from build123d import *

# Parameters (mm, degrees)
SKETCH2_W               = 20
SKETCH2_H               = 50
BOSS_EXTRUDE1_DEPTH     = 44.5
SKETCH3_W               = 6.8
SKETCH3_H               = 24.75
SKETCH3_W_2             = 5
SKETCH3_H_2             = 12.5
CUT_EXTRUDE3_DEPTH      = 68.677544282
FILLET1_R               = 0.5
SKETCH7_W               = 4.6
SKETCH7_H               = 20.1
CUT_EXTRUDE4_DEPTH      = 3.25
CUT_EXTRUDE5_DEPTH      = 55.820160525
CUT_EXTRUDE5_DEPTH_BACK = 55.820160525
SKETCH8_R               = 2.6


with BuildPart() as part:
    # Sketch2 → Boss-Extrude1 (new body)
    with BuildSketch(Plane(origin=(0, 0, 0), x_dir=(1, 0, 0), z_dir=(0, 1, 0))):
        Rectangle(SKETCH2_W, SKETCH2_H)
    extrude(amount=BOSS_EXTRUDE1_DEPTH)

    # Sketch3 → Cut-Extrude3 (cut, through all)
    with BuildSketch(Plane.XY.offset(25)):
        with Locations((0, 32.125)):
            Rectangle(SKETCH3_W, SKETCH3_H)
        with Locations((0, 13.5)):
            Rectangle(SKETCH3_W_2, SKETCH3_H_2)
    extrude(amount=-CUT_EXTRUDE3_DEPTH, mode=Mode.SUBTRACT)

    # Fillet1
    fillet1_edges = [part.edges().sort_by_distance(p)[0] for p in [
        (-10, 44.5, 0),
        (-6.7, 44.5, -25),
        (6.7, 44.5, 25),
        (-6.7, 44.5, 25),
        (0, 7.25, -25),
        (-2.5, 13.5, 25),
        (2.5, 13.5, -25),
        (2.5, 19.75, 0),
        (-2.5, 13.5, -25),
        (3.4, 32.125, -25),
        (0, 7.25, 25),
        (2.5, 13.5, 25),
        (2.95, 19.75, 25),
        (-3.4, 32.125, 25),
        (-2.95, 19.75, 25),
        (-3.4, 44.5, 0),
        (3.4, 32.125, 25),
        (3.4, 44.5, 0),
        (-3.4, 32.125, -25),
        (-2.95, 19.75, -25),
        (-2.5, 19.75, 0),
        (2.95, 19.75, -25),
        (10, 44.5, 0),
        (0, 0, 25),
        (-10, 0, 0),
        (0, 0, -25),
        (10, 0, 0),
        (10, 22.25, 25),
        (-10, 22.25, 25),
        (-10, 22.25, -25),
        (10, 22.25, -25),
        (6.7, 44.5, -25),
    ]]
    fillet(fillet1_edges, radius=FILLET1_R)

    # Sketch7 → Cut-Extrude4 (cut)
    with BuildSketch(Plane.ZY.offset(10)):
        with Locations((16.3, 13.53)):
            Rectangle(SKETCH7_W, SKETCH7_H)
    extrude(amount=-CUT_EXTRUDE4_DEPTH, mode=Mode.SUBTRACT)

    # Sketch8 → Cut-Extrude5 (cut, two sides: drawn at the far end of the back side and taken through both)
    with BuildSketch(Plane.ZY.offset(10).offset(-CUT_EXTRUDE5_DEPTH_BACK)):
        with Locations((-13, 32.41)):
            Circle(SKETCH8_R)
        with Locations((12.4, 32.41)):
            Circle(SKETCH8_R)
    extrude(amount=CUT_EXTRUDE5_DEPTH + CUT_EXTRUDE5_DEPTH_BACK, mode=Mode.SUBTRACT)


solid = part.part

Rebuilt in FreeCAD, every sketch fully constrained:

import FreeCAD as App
import Part
import Sketcher


def edges_at(feature, points):
    """Names of the edges that pass closest to the given points."""
    edges = feature.Shape.Edges
    near = lambda p: min(range(len(edges)), key=lambda i: edges[i].distToShape(Part.Vertex(*p))[0])
    return sorted({f"Edge{near(p) + 1}" for p in points})

doc = App.newDocument("Part")
body = doc.addObject("PartDesign::Body", "Body")

sketch1 = body.newObject("Sketcher::SketchObject", "Sketch")
sketch1.AttachmentSupport = (doc.getObject("XZ_Plane"), [""])
sketch1.MapMode = "FlatFace"
sketch1.addGeometry(Part.LineSegment(App.Vector(-10, -25, 0), App.Vector(-10, 25, 0)), False)
sketch1.addGeometry(Part.LineSegment(App.Vector(-10, 25, 0), App.Vector(10, 25, 0)), False)
sketch1.addGeometry(Part.LineSegment(App.Vector(10, 25, 0), App.Vector(10, -25, 0)), False)
sketch1.addGeometry(Part.LineSegment(App.Vector(10, -25, 0), App.Vector(-10, -25, 0)), False)
sketch1.addConstraint(Sketcher.Constraint("Coincident", 0, 2, 1, 1))
sketch1.addConstraint(Sketcher.Constraint("Coincident", 1, 2, 2, 1))
sketch1.addConstraint(Sketcher.Constraint("Coincident", 2, 2, 3, 1))
sketch1.addConstraint(Sketcher.Constraint("Coincident", 3, 2, 0, 1))
sketch1.addConstraint(Sketcher.Constraint("Vertical", 0))
sketch1.addConstraint(Sketcher.Constraint("Horizontal", 1))
sketch1.addConstraint(Sketcher.Constraint("Vertical", 2))
sketch1.addConstraint(Sketcher.Constraint("Horizontal", 3))
sketch1.addConstraint(Sketcher.Constraint("Symmetric", 0, 2, 2, 2, -1, 1))
sketch1.addConstraint(Sketcher.Constraint("DistanceX", 1, 1, 1, 2, 20.0))
sketch1.addConstraint(Sketcher.Constraint("DistanceY", 0, 1, 0, 2, 50.0))
pad1 = body.newObject("PartDesign::Pad", "Pad")
pad1.Profile = sketch1
pad1.Length = 44.5
pad1.Reversed = True

sketch2 = body.newObject("Sketcher::SketchObject", "Sketch001")
sketch2.AttachmentSupport = (doc.getObject("XY_Plane"), [""])
sketch2.MapMode = "FlatFace"
sketch2.AttachmentOffset = App.Placement(App.Vector(0, 0, 25), App.Rotation())
sketch2.addGeometry(Part.LineSegment(App.Vector(-3.4, 44.5, 0), App.Vector(-3.4, 19.8, 0)), False)
sketch2.addGeometry(Part.LineSegment(App.Vector(-3.4, 19.8, 0), App.Vector(-2.5, 19.8, 0)), False)
sketch2.addGeometry(Part.LineSegment(App.Vector(-2.5, 19.8, 0), App.Vector(-2.5, 7.2, 0)), False)
sketch2.addGeometry(Part.LineSegment(App.Vector(-2.5, 7.2, 0), App.Vector(2.5, 7.2, 0)), False)
sketch2.addGeometry(Part.LineSegment(App.Vector(2.5, 7.2, 0), App.Vector(2.5, 19.8, 0)), False)
sketch2.addGeometry(Part.LineSegment(App.Vector(2.5, 19.8, 0), App.Vector(3.4, 19.8, 0)), False)
sketch2.addGeometry(Part.LineSegment(App.Vector(3.4, 19.8, 0), App.Vector(3.4, 44.5, 0)), False)
sketch2.addGeometry(Part.LineSegment(App.Vector(3.4, 44.5, 0), App.Vector(-3.4, 44.5, 0)), False)
sketch2.addConstraint(Sketcher.Constraint("Coincident", 0, 2, 1, 1))
sketch2.addConstraint(Sketcher.Constraint("Coincident", 1, 2, 2, 1))
sketch2.addConstraint(Sketcher.Constraint("Coincident", 2, 2, 3, 1))
sketch2.addConstraint(Sketcher.Constraint("Coincident", 3, 2, 4, 1))
sketch2.addConstraint(Sketcher.Constraint("Coincident", 4, 2, 5, 1))
sketch2.addConstraint(Sketcher.Constraint("Coincident", 5, 2, 6, 1))
sketch2.addConstraint(Sketcher.Constraint("Coincident", 6, 2, 7, 1))
sketch2.addConstraint(Sketcher.Constraint("Coincident", 7, 2, 0, 1))
sketch2.addConstraint(Sketcher.Constraint("Vertical", 0))
sketch2.addConstraint(Sketcher.Constraint("Horizontal", 1))
sketch2.addConstraint(Sketcher.Constraint("Vertical", 2))
sketch2.addConstraint(Sketcher.Constraint("Horizontal", 3))
sketch2.addConstraint(Sketcher.Constraint("Vertical", 4))
sketch2.addConstraint(Sketcher.Constraint("Horizontal", 5))
sketch2.addConstraint(Sketcher.Constraint("Vertical", 6))
sketch2.addConstraint(Sketcher.Constraint("Horizontal", 7))
sketch2.addConstraint(Sketcher.Constraint("Symmetric", 1, 2, 4, 2, -2))
sketch2.addConstraint(Sketcher.Constraint("Equal", 1, 5))
sketch2.addConstraint(Sketcher.Constraint("DistanceX", 3, 1, 3, 2, 5.0))
sketch2.addConstraint(Sketcher.Constraint("DistanceX", 1, 1, 1, 2, 0.9))
sketch2.addConstraint(Sketcher.Constraint("DistanceY", 2, 2, 2, 1, 12.5))
sketch2.addConstraint(Sketcher.Constraint("DistanceY", 0, 2, 0, 1, 24.75))
sketch2.addConstraint(Sketcher.Constraint("DistanceY", -1, 1, 6, 2, 44.5))
pocket1 = body.newObject("PartDesign::Pocket", "Pocket")
pocket1.Profile = sketch2
pocket1.Type = "ThroughAll"
doc.recompute()

fillet = body.newObject("PartDesign::Fillet", "Fillet")
fillet.Base = (pocket1, edges_at(pocket1, [
    (-10, 44.5, 0),
    (-6.7, 44.5, -25),
    (6.7, 44.5, 25),
    (-6.7, 44.5, 25),
    (0, 7.25, -25),
    (-2.5, 13.5, 25),
    (2.5, 13.5, -25),
    (2.5, 19.75, 0),
    (-2.5, 13.5, -25),
    (3.4, 32.125, -25),
    (0, 7.25, 25),
    (2.5, 13.5, 25),
    (2.95, 19.75, 25),
    (-3.4, 32.125, 25),
    (-2.95, 19.75, 25),
    (-3.4, 44.5, 0),
    (3.4, 32.125, 25),
    (3.4, 44.5, 0),
    (-3.4, 32.125, -25),
    (-2.95, 19.75, -25),
    (-2.5, 19.75, 0),
    (2.95, 19.75, -25),
    (10, 44.5, 0),
    (0, 0, 25),
    (-10, 0, 0),
    (0, 0, -25),
    (10, 0, 0),
    (10, 22.25, 25),
    (-10, 22.25, 25),
    (-10, 22.25, -25),
    (10, 22.25, -25),
    (6.7, 44.5, -25),
]))
fillet.Radius = 0.5

sketch3 = body.newObject("Sketcher::SketchObject", "Sketch002")
sketch3.AttachmentSupport = (doc.getObject("YZ_Plane"), [""])
sketch3.MapMode = "FlatFace"
sketch3.AttachmentOffset = App.Placement(App.Vector(0, 0, -10), App.Rotation())
sketch3.addGeometry(Part.LineSegment(App.Vector(23.6, 14, 0), App.Vector(3.5, 14, 0)), False)
sketch3.addGeometry(Part.LineSegment(App.Vector(3.5, 14, 0), App.Vector(3.5, 18.6, 0)), False)
sketch3.addGeometry(Part.LineSegment(App.Vector(3.5, 18.6, 0), App.Vector(23.6, 18.6, 0)), False)
sketch3.addGeometry(Part.LineSegment(App.Vector(23.6, 18.6, 0), App.Vector(23.6, 14, 0)), False)
sketch3.addConstraint(Sketcher.Constraint("Coincident", 0, 2, 1, 1))
sketch3.addConstraint(Sketcher.Constraint("Coincident", 1, 2, 2, 1))
sketch3.addConstraint(Sketcher.Constraint("Coincident", 2, 2, 3, 1))
sketch3.addConstraint(Sketcher.Constraint("Coincident", 3, 2, 0, 1))
sketch3.addConstraint(Sketcher.Constraint("Horizontal", 0))
sketch3.addConstraint(Sketcher.Constraint("Vertical", 1))
sketch3.addConstraint(Sketcher.Constraint("Horizontal", 2))
sketch3.addConstraint(Sketcher.Constraint("Vertical", 3))
sketch3.addConstraint(Sketcher.Constraint("DistanceX", 0, 2, 0, 1, 20.1))
sketch3.addConstraint(Sketcher.Constraint("DistanceY", 1, 1, 1, 2, 4.6))
sketch3.addConstraint(Sketcher.Constraint("DistanceY", -1, 1, 0, 2, 14.0))
sketch3.addConstraint(Sketcher.Constraint("DistanceX", -1, 1, 0, 2, 3.48))
pocket2 = body.newObject("PartDesign::Pocket", "Pocket001")
pocket2.Profile = sketch3
pocket2.Length = 3.25
pocket2.Reversed = True

sketch4 = body.newObject("Sketcher::SketchObject", "Sketch003")
sketch4.AttachmentSupport = (doc.getObject("YZ_Plane"), [""])
sketch4.MapMode = "FlatFace"
sketch4.AttachmentOffset = App.Placement(App.Vector(0, 0, -10), App.Rotation())
sketch4.addGeometry(Part.Circle(App.Vector(32.4, -13, 0), App.Vector(0, 0, 1), 2.6), False)
sketch4.addGeometry(Part.Circle(App.Vector(32.4, 12.4, 0), App.Vector(0, 0, 1), 2.6), False)
sketch4.addConstraint(Sketcher.Constraint("Equal", 0, 1))
sketch4.addConstraint(Sketcher.Constraint("Vertical", 0, 3, 1, 3))
sketch4.addConstraint(Sketcher.Constraint("Diameter", 0, 5.2))
sketch4.addConstraint(Sketcher.Constraint("DistanceY", 0, 3, -1, 1, 13.0))
sketch4.addConstraint(Sketcher.Constraint("DistanceY", -1, 1, 1, 3, 12.4))
sketch4.addConstraint(Sketcher.Constraint("DistanceX", -1, 1, 0, 3, 32.41))
pocket3 = body.newObject("PartDesign::Pocket", "Pocket002")
pocket3.Profile = sketch4
pocket3.Type = "ThroughAll"
pocket3.Midplane = True

doc.recompute()
